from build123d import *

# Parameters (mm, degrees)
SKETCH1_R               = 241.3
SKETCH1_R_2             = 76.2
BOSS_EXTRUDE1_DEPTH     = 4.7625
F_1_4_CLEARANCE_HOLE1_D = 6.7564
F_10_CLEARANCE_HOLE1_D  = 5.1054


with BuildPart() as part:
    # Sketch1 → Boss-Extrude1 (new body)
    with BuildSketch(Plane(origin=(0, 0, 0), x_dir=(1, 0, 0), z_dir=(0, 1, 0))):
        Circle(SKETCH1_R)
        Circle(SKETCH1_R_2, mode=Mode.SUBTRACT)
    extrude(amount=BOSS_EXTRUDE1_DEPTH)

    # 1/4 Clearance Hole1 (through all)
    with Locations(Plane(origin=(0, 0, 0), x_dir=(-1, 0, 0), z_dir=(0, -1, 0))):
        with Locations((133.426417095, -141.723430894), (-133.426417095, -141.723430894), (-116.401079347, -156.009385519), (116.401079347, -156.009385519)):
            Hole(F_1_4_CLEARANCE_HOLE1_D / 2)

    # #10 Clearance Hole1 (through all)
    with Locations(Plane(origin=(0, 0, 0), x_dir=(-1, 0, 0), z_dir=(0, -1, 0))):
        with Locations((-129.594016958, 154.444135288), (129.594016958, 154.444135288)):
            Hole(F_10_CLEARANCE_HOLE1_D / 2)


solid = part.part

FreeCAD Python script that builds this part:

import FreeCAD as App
import Part
import Sketcher
from FreeCAD import Vector
Q = App.Units.Quantity

doc = App.newDocument("Part")
params = doc.addObject("Spreadsheet::Sheet", "Params")
for row, (alias, value) in enumerate([
    ("sketch1_diameter", "19 in"),
    ("sketch1_diameter2", "6 in"),
    ("pad1_length", "0.1875 in"),
    ("sketch2_diameter", "0.266 in"),
    ("hole_diameter", "0.266 in"),
    ("sketch3_diameter", "0.201 in"),
    ("hole2_diameter", "0.201 in"),
], start=1):
    params.set(f"A{row}", alias)
    params.set(f"B{row}", "=" + value)
    params.setAlias(f"B{row}", alias)

body = doc.addObject("PartDesign::Body", "Body")

sketch1 = body.newObject("Sketcher::SketchObject", "Sketch")
sketch1.AttachmentSupport = (doc.getObject("XZ_Plane"), [""])
sketch1.MapMode = "FlatFace"
sketch1.addGeometry([
    Part.Circle(Vector(0, 0, 0), Vector(0, 0, 1), 241),
    Part.Circle(Vector(0, 0, 0), Vector(0, 0, 1), 76),
], False)
sketch1.addConstraint([
    Sketcher.Constraint("Coincident", 0, 3, -1, 1),
    Sketcher.Constraint("Coincident", 1, 3, -1, 1),
    Sketcher.Constraint("Diameter", 0, Q("19 in")),
    Sketcher.Constraint("Diameter", 1, Q("6 in")),
])
sketch1.setExpression("Constraints[2]", "Params.sketch1_diameter")
sketch1.setExpression("Constraints[3]", "Params.sketch1_diameter2")
pad1 = body.newObject("PartDesign::Pad", "Pad")
pad1.Profile = sketch1
pad1.setExpression("Length", "Params.pad1_length")
pad1.Reversed = True

sketch2 = body.newObject("Sketcher::SketchObject", "Sketch001")
sketch2.AttachmentSupport = (doc.getObject("XZ_Plane"), [""])
sketch2.MapMode = "FlatFace"
sketch2.addGeometry([
    Part.Circle(Vector(-133.4, 141.7, 0), Vector(0, 0, 1), 3.4),
    Part.Circle(Vector(133.4, 141.7, 0), Vector(0, 0, 1), 3.4),
    Part.Circle(Vector(116.4, 156, 0), Vector(0, 0, 1), 3.4),
    Part.Circle(Vector(-116.4, 156, 0), Vector(0, 0, 1), 3.4),
], False)
sketch2.addConstraint([
    Sketcher.Constraint("Equal", 0, 1),
    Sketcher.Constraint("Equal", 1, 2),
    Sketcher.Constraint("Equal", 2, 3),
    Sketcher.Constraint("Symmetric", 0, 3, 1, 3, -2),
    Sketcher.Constraint("Symmetric", 2, 3, 3, 3, -2),
    Sketcher.Constraint("Diameter", 0, Q("0.266 in")),
    Sketcher.Constraint("DistanceY", -1, 1, 0, 3, 141.723431),
    Sketcher.Constraint("DistanceX", -1, 1, 2, 3, 116.401079),
    Sketcher.Constraint("DistanceX", 0, 3, -1, 1, 133.426417),
    Sketcher.Constraint("DistanceY", -1, 1, 2, 3, 156.009386),
])
sketch2.setExpression("Constraints[5]", "Params.sketch2_diameter")
doc.recompute()
hole = body.newObject("PartDesign::Hole", "Hole")
hole.Profile = sketch2
hole.ThreadType = "None"
hole.setExpression("Diameter", "Params.hole_diameter")
hole.DepthType = "ThroughAll"

sketch3 = body.newObject("Sketcher::SketchObject", "Sketch002")
sketch3.AttachmentSupport = (doc.getObject("XZ_Plane"), [""])
sketch3.MapMode = "FlatFace"
sketch3.addGeometry([
    Part.Circle(Vector(129.6, -154.4, 0), Vector(0, 0, 1), 2.6),
    Part.Circle(Vector(-129.6, -154.4, 0), Vector(0, 0, 1), 2.6),
], False)
sketch3.addConstraint([
    Sketcher.Constraint("Equal", 0, 1),
    Sketcher.Constraint("Symmetric", 0, 3, 1, 3, -2),
    Sketcher.Constraint("Diameter", 0, Q("0.201 in")),
    Sketcher.Constraint("DistanceX", -1, 1, 0, 3, 129.594017),
    Sketcher.Constraint("DistanceY", 0, 3, -1, 1, 154.444135),
])
sketch3.setExpression("Constraints[2]", "Params.sketch3_diameter")
doc.recompute()
hole2 = body.newObject("PartDesign::Hole", "Hole001")
hole2.Profile = sketch3
hole2.ThreadType = "None"
hole2.setExpression("Diameter", "Params.hole2_diameter")
hole2.DepthType = "ThroughAll"

doc.recompute()
